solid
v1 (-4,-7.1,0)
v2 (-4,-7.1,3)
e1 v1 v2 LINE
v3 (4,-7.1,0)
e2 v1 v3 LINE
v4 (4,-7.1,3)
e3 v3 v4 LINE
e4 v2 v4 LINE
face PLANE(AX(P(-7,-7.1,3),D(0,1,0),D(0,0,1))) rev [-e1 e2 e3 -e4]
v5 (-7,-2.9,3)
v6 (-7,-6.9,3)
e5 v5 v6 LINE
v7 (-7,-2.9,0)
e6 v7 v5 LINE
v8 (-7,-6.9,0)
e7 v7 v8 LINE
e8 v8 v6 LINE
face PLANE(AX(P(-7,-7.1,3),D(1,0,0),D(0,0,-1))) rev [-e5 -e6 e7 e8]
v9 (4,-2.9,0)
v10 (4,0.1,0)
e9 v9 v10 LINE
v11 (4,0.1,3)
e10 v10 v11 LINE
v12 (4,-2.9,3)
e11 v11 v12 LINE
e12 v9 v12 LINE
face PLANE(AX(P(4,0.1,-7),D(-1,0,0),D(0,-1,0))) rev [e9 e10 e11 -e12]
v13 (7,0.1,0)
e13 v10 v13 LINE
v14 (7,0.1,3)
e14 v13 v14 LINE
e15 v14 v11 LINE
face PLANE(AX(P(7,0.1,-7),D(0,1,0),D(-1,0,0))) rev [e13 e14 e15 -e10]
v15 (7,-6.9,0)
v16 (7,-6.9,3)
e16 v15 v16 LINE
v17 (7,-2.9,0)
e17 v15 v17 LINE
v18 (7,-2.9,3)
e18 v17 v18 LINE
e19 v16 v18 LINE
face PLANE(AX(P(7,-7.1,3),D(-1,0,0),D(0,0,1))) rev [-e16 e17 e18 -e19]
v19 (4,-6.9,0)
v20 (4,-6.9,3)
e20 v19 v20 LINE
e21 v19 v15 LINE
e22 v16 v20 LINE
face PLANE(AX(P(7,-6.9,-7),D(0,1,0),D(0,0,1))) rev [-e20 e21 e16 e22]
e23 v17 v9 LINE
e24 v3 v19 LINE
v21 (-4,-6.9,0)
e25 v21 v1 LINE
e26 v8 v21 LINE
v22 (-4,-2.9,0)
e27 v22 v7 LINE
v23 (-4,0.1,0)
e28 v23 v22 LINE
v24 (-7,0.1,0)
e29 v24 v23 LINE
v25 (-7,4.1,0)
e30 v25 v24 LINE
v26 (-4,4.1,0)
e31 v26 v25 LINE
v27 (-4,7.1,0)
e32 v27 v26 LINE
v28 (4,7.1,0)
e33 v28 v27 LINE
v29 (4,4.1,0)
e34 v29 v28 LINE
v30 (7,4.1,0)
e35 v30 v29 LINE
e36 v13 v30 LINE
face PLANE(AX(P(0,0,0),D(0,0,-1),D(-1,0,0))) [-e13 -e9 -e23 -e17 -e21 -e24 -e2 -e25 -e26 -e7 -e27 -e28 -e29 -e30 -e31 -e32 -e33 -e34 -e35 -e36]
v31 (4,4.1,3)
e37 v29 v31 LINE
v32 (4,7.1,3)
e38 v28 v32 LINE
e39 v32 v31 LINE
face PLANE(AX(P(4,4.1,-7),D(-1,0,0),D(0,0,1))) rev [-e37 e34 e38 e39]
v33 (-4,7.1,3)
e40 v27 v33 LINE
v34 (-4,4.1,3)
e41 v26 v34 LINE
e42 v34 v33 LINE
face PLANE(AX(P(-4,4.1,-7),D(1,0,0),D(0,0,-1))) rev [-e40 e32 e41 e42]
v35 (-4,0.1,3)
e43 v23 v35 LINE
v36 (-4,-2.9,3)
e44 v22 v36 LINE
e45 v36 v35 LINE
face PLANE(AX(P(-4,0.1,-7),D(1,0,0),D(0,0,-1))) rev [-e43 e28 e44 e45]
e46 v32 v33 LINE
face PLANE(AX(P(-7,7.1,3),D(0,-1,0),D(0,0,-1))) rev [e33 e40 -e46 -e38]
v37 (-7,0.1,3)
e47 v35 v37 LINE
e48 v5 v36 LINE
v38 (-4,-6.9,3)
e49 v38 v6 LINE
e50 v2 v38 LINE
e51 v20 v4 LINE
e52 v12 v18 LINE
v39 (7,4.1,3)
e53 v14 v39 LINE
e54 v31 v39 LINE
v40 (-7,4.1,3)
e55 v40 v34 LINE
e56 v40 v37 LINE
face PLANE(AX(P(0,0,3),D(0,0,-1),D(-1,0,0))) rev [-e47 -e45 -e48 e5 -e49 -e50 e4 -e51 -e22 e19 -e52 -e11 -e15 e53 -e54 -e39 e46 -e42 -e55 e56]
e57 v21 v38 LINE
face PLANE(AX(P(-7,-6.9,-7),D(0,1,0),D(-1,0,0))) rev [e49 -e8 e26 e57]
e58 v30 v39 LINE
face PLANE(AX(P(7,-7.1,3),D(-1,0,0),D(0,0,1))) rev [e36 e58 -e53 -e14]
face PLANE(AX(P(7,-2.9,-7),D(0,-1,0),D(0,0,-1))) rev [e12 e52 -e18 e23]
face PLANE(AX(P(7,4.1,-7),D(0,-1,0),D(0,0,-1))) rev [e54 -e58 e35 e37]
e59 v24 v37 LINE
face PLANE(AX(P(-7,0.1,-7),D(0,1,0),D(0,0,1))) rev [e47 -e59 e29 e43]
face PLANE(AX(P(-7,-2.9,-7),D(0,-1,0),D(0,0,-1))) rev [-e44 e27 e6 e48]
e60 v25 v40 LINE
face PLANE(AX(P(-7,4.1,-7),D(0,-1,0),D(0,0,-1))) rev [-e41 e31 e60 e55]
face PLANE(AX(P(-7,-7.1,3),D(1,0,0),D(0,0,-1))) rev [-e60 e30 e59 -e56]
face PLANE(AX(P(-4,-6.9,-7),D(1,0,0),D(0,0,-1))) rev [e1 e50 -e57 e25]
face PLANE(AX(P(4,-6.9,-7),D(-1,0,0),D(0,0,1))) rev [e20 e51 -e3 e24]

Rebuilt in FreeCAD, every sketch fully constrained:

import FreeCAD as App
import Part
import Sketcher

V = App.Vector
Q = App.Units.Quantity


def add_polygon(sketch, points):
    """Adds a closed chain of lines whose ends are joined by coincident constraints."""
    first, n = sketch.GeometryCount, len(points)
    for a, b in zip(points, points[1:] + points[:1]):
        sketch.addGeometry(Part.LineSegment(App.Vector(*a, 0), App.Vector(*b, 0)), False)
    for i in range(n):
        sketch.addConstraint(Sketcher.Constraint("Coincident", first + i, 2, first + (i + 1) % n, 1))

doc = App.newDocument("Part")
body = doc.addObject("PartDesign::Body", "Body")

# Sketch on XY plane
sketch1 = body.newObject("Sketcher::SketchObject", "Sketch")
sketch1.AttachmentSupport = (doc.getObject("XY_Plane"), [""])
sketch1.MapMode = "FlatFace"
add_polygon(sketch1, [(-7, 7), (-7, -7), (7, -7), (7, 7)])  # lines 0-3
sketch1.addConstraint(Sketcher.Constraint("Vertical", 0))
sketch1.addConstraint(Sketcher.Constraint("Horizontal", 1))
sketch1.addConstraint(Sketcher.Constraint("Vertical", 2))
sketch1.addConstraint(Sketcher.Constraint("Horizontal", 3))
sketch1.addConstraint(Sketcher.Constraint("Symmetric", 0, 2, 2, 2, -1, 1))
sketch1.addConstraint(Sketcher.Constraint("DistanceX", 1, 1, 1, 2, Q("14 mm")))
sketch1.addConstraint(Sketcher.Constraint("DistanceY", 0, 2, 0, 1, Q("14.2 mm")))
pad1 = body.newObject("PartDesign::Pad", "Pad")
pad1.Profile = sketch1
pad1.Length = 3

# Sketch on XY plane
sketch2 = body.newObject("Sketcher::SketchObject", "Sketch001")
sketch2.AttachmentSupport = (doc.getObject("XY_Plane"), [""])
sketch2.MapMode = "FlatFace"
sketch2.AttachmentOffset = App.Placement(V(0, 0, 3), App.Rotation())
add_polygon(sketch2, [(-7, 7.1), (-7, 4.1), (-4, 4.1), (-4, 7.1)])  # lines 0-3
add_polygon(sketch2, [(-7, 0.1), (-7, -2.9), (-4, -2.9), (-4, 0.1)])  # lines 4-7
add_polygon(sketch2, [(-7, -6.9), (-7, -7.1), (-4, -7.1), (-4, -6.9)])  # lines 8-11
sketch2.addConstraint(Sketcher.Constraint("Vertical", 0))
sketch2.addConstraint(Sketcher.Constraint("Horizontal", 1))
sketch2.addConstraint(Sketcher.Constraint("Vertical", 2))
sketch2.addConstraint(Sketcher.Constraint("Horizontal", 3))
sketch2.addConstraint(Sketcher.Constraint("Vertical", 4))
sketch2.addConstraint(Sketcher.Constraint("Horizontal", 5))
sketch2.addConstraint(Sketcher.Constraint("Vertical", 6))
sketch2.addConstraint(Sketcher.Constraint("Horizontal", 7))
sketch2.addConstraint(Sketcher.Constraint("Vertical", 8))
sketch2.addConstraint(Sketcher.Constraint("Horizontal", 9))
sketch2.addConstraint(Sketcher.Constraint("Vertical", 10))
sketch2.addConstraint(Sketcher.Constraint("Horizontal", 11))
sketch2.addConstraint(Sketcher.Constraint("Symmetric", 3, 2, 8, 2, -1))
sketch2.addConstraint(Sketcher.Constraint("Vertical", 3, 2, 4, 2))
sketch2.addConstraint(Sketcher.Constraint("Vertical", 2, 2, 5, 2))
sketch2.addConstraint(Sketcher.Constraint("Vertical", 6, 2, 9, 2))
sketch2.addConstraint(Sketcher.Constraint("Equal", 11, 0))
sketch2.addConstraint(Sketcher.Constraint("Equal", 2, 4))
sketch2.addConstraint(Sketcher.Constraint("DistanceX", 1, 1, 1, 2, Q("3 mm")))
sketch2.addConstraint(Sketcher.Constraint("DistanceY", 8, 2, 8, 1, Q("0.2 mm")))
sketch2.addConstraint(Sketcher.Constraint("DistanceX", 0, 2, -1, 1, Q("7 mm")))
sketch2.addConstraint(Sketcher.Constraint("DistanceY", 4, 2, 0, 2, Q("7 mm")))
sketch2.addConstraint(Sketcher.Constraint("DistanceY", 10, 2, 5, 2, Q("4 mm")))
pocket1 = body.newObject("PartDesign::Pocket", "Pocket")
pocket1.Profile = sketch2
pocket1.Length = 10

# Sketch on XY plane
sketch3 = body.newObject("Sketcher::SketchObject", "Sketch002")
sketch3.AttachmentSupport = (doc.getObject("XY_Plane"), [""])
sketch3.MapMode = "FlatFace"
sketch3.AttachmentOffset = App.Placement(V(0, 0, 3), App.Rotation())
add_polygon(sketch3, [(4, 7.1), (4, 4.1), (7, 4.1), (7, 7.1)])  # lines 0-3
add_polygon(sketch3, [(4, 0.1), (4, -2.9), (7, -2.9), (7, 0.1)])  # lines 4-7
add_polygon(sketch3, [(4, -6.9), (4, -7.1), (7, -7.1), (7, -6.9)])  # lines 8-11
sketch3.addConstraint(Sketcher.Constraint("Vertical", 0))
sketch3.addConstraint(Sketcher.Constraint("Horizontal", 1))
sketch3.addConstraint(Sketcher.Constraint("Vertical", 2))
sketch3.addConstraint(Sketcher.Constraint("Horizontal", 3))
sketch3.addConstraint(Sketcher.Constraint("Vertical", 4))
sketch3.addConstraint(Sketcher.Constraint("Horizontal", 5))
sketch3.addConstraint(Sketcher.Constraint("Vertical", 6))
sketch3.addConstraint(Sketcher.Constraint("Horizontal", 7))
sketch3.addConstraint(Sketcher.Constraint("Vertical", 8))
sketch3.addConstraint(Sketcher.Constraint("Horizontal", 9))
sketch3.addConstraint(Sketcher.Constraint("Vertical", 10))
sketch3.addConstraint(Sketcher.Constraint("Horizontal", 11))
sketch3.addConstraint(Sketcher.Constraint("Symmetric", 3, 2, 8, 2, -1))
sketch3.addConstraint(Sketcher.Constraint("Vertical", 3, 2, 4, 2))
sketch3.addConstraint(Sketcher.Constraint("Vertical", 2, 2, 5, 2))
sketch3.addConstraint(Sketcher.Constraint("Vertical", 6, 2, 9, 2))
sketch3.addConstraint(Sketcher.Constraint("Equal", 11, 0))
sketch3.addConstraint(Sketcher.Constraint("Equal", 2, 4))
sketch3.addConstraint(Sketcher.Constraint("DistanceX", 1, 1, 1, 2, Q("3 mm")))
sketch3.addConstraint(Sketcher.Constraint("DistanceY", 8, 2, 8, 1, Q("0.2 mm")))
sketch3.addConstraint(Sketcher.Constraint("DistanceX", -1, 1, 0, 2, Q("4 mm")))
sketch3.addConstraint(Sketcher.Constraint("DistanceY", 4, 2, 0, 2, Q("7 mm")))
sketch3.addConstraint(Sketcher.Constraint("DistanceY", 10, 2, 5, 2, Q("4 mm")))
pocket2 = body.newObject("PartDesign::Pocket", "Pocket001")
pocket2.Profile = sketch3
pocket2.Length = 10

doc.recompute()
